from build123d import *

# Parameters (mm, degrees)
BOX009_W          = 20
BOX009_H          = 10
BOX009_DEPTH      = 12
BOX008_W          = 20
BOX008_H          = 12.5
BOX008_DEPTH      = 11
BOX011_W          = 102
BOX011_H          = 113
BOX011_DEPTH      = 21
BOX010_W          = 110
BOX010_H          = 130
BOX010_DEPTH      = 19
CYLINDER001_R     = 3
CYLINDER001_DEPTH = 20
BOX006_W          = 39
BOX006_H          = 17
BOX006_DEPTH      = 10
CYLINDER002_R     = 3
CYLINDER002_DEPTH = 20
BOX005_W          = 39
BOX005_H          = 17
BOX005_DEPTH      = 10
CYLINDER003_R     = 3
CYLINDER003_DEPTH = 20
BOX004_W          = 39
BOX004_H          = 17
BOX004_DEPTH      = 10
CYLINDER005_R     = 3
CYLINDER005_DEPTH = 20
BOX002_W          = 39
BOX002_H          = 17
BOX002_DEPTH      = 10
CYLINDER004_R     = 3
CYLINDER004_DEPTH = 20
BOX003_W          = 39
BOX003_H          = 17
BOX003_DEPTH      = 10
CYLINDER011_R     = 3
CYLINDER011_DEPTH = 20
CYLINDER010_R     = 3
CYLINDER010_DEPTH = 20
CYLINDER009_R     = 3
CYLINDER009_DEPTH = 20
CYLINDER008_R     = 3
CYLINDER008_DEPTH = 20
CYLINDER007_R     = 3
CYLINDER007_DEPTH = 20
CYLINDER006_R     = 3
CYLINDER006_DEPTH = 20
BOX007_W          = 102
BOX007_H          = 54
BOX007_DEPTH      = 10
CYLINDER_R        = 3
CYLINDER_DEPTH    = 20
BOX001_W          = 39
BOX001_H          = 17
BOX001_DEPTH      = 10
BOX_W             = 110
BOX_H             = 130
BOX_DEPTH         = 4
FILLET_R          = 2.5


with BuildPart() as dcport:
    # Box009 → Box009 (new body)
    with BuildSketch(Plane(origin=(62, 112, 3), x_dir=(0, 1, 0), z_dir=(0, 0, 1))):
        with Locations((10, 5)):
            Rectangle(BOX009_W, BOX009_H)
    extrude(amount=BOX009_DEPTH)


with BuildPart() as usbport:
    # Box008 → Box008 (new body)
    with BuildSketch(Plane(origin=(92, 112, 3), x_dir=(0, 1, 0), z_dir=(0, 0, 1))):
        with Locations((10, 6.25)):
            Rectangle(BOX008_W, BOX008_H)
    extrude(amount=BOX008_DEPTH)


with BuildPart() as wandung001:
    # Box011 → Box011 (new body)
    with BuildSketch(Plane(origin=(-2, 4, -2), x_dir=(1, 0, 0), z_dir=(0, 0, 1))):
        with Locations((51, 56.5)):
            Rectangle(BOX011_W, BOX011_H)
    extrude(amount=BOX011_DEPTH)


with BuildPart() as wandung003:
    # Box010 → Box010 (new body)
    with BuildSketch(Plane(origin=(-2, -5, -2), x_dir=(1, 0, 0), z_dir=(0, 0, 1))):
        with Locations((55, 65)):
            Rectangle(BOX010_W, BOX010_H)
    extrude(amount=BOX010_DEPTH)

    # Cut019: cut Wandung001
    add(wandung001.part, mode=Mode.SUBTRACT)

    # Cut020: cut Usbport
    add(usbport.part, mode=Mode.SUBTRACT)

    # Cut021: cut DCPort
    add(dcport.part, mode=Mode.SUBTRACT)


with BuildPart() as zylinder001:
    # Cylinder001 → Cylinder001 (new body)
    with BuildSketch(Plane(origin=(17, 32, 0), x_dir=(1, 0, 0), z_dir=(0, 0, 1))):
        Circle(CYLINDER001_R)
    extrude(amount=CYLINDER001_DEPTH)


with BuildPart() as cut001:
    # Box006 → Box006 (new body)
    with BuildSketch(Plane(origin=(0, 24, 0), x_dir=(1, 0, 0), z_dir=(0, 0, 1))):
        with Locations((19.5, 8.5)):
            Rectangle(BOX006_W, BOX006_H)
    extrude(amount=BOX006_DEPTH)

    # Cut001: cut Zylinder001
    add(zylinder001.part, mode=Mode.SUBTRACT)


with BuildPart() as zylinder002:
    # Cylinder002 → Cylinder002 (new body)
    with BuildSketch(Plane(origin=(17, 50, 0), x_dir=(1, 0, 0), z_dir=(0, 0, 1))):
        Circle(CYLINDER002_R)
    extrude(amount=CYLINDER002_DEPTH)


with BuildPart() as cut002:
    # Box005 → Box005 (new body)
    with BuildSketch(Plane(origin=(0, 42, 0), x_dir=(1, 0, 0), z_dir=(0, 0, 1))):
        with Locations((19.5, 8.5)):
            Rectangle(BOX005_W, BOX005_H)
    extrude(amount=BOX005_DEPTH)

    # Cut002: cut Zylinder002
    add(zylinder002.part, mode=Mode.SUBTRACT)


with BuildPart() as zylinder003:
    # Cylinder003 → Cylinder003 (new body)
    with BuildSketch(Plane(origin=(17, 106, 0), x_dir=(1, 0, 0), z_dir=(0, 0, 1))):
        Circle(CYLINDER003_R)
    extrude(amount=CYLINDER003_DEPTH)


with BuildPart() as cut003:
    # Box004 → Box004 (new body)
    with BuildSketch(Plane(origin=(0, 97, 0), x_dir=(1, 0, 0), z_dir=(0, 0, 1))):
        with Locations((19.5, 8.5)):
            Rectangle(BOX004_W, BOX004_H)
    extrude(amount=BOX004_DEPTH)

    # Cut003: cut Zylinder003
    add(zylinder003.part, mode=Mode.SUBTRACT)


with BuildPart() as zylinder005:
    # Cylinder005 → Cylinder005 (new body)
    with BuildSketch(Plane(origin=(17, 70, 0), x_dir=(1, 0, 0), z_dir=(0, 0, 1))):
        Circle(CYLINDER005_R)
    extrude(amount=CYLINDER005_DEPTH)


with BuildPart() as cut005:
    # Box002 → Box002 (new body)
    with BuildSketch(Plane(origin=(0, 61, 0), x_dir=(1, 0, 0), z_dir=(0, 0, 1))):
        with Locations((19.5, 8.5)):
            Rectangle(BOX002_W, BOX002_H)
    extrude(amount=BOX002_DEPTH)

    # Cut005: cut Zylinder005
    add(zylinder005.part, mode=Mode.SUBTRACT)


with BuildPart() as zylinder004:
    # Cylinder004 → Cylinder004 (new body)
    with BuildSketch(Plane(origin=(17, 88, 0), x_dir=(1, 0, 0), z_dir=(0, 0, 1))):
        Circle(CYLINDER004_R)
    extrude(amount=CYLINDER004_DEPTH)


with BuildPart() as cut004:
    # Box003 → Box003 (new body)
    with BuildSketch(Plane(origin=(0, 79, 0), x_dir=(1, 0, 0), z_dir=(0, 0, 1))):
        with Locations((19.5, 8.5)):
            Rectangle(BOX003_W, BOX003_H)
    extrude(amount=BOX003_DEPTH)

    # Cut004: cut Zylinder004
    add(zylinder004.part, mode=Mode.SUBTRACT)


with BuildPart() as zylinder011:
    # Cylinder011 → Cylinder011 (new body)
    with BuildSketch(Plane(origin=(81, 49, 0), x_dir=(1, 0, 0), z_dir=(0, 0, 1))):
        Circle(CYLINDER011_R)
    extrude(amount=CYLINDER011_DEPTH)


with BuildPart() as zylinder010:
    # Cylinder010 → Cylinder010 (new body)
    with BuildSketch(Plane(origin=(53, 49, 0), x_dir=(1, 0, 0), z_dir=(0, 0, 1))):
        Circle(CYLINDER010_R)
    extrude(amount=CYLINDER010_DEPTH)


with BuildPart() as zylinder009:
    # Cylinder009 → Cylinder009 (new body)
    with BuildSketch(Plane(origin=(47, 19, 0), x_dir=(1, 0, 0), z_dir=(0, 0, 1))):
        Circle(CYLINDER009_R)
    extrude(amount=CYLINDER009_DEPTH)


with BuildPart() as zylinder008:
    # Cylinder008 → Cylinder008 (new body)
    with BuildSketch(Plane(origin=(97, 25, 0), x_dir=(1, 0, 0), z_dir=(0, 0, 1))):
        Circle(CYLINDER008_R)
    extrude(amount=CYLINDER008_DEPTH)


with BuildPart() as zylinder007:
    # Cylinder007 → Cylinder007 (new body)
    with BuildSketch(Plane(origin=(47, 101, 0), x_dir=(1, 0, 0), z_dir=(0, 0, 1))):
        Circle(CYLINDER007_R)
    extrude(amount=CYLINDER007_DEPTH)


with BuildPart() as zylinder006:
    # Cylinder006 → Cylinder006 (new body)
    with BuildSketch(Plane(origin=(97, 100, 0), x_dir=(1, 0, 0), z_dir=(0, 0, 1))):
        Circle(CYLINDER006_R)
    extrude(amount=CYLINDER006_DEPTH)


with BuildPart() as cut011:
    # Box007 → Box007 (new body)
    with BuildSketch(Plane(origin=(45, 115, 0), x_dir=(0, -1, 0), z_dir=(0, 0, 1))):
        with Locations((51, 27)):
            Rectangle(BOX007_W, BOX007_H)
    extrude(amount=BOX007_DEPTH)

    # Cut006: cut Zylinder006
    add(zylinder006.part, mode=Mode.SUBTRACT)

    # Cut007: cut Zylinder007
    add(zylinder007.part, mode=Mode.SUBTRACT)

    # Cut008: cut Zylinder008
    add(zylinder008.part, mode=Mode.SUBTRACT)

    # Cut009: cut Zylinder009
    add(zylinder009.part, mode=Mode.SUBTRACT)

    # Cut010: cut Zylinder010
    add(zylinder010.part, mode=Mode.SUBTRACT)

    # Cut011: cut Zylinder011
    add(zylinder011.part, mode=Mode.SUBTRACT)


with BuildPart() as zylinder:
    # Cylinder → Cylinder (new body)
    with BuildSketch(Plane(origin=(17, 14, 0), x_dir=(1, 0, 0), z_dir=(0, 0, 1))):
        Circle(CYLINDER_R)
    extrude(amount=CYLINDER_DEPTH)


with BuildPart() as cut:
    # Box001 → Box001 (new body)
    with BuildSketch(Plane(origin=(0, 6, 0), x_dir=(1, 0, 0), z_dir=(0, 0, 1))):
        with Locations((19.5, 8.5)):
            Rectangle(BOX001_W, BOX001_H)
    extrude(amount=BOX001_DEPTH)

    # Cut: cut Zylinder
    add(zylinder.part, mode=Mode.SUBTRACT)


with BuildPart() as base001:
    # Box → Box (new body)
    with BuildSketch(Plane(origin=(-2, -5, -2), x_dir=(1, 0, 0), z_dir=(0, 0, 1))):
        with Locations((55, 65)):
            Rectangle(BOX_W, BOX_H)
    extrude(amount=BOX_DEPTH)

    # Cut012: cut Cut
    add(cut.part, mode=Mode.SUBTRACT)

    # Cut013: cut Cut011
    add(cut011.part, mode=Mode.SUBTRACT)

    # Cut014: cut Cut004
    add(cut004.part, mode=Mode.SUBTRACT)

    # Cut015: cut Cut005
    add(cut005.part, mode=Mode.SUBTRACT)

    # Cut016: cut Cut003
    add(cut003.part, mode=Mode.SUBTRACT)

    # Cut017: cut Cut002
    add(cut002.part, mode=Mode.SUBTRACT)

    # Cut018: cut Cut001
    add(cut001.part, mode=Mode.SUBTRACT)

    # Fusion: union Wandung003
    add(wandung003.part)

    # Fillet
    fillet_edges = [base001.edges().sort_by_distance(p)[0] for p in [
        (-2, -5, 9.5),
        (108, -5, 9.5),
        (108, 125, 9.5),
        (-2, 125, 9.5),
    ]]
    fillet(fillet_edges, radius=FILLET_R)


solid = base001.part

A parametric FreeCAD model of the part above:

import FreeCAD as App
import Part
import Sketcher
Q = App.Units.Quantity


def edges_at(feature, points):
    """Names of the edges that pass closest to the given points."""
    edges = feature.Shape.Edges
    near = lambda p: min(range(len(edges)), key=lambda i: edges[i].distToShape(Part.Vertex(*p))[0])
    return sorted({f"Edge{near(p) + 1}" for p in points})


def add_polygon(sketch, points):
    """Adds a closed chain of lines whose ends are joined by coincident constraints."""
    first, n = sketch.GeometryCount, len(points)
    for a, b in zip(points, points[1:] + points[:1]):
        sketch.addGeometry(Part.LineSegment(App.Vector(*a, 0), App.Vector(*b, 0)), False)
    for i in range(n):
        sketch.addConstraint(Sketcher.Constraint("Coincident", first + i, 2, first + (i + 1) % n, 1))

doc = App.newDocument("Part")
body = doc.addObject("PartDesign::Body", "Body")

sketch1 = body.newObject("Sketcher::SketchObject", "Sketch")
sketch1.AttachmentSupport = (doc.getObject("XY_Plane"), [""])
sketch1.MapMode = "FlatFace"
sketch1.AttachmentOffset = App.Placement(App.Vector(0, 0, 3), App.Rotation())
add_polygon(sketch1, [(52, 112), (62, 112), (62, 132), (52, 132)])
sketch1.addConstraint([
    Sketcher.Constraint("Horizontal", 0),
    Sketcher.Constraint("Vertical", 1),
    Sketcher.Constraint("Horizontal", 2),
    Sketcher.Constraint("Vertical", 3),
    Sketcher.Constraint("DistanceX", 0, 1, 0, 2, Q("10 mm")),
    Sketcher.Constraint("DistanceY", 1, 1, 1, 2, Q("20 mm")),
    Sketcher.Constraint("DistanceX", -1, 1, 0, 2, Q("62 mm")),
    Sketcher.Constraint("DistanceY", -1, 1, 0, 2, Q("112 mm")),
])
pad1 = body.newObject("PartDesign::Pad", "Pad")
pad1.Profile = sketch1
pad1.Length = 12
body2 = doc.addObject("PartDesign::Body", "Body001")

sketch2 = body2.newObject("Sketcher::SketchObject", "Sketch001")
sketch2.AttachmentSupport = (doc.getObject("XY_Plane001"), [""])
sketch2.MapMode = "FlatFace"
sketch2.AttachmentOffset = App.Placement(App.Vector(0, 0, 3), App.Rotation())
add_polygon(sketch2, [(80, 112), (92, 112), (92, 132), (80, 132)])
sketch2.addConstraint([
    Sketcher.Constraint("Horizontal", 0),
    Sketcher.Constraint("Vertical", 1),
    Sketcher.Constraint("Horizontal", 2),
    Sketcher.Constraint("Vertical", 3),
    Sketcher.Constraint("DistanceY", 1, 1, 1, 2, Q("20 mm")),
    Sketcher.Constraint("DistanceX", 0, 1, 0, 2, Q("12.5 mm")),
    Sketcher.Constraint("DistanceX", -1, 1, 0, 2, Q("92 mm")),
    Sketcher.Constraint("DistanceY", -1, 1, 0, 2, Q("112 mm")),
])
pad2 = body2.newObject("PartDesign::Pad", "Pad001")
pad2.Profile = sketch2
pad2.Length = 11
body3 = doc.addObject("PartDesign::Body", "Body002")

sketch3 = body3.newObject("Sketcher::SketchObject", "Sketch002")
sketch3.AttachmentSupport = (doc.getObject("XY_Plane002"), [""])
sketch3.MapMode = "FlatFace"
sketch3.AttachmentOffset = App.Placement(App.Vector(0, 0, -2), App.Rotation())
add_polygon(sketch3, [(-2, 117), (-2, 4), (100, 4), (100, 117)])
sketch3.addConstraint([
    Sketcher.Constraint("Vertical", 0),
    Sketcher.Constraint("Horizontal", 1),
    Sketcher.Constraint("Vertical", 2),
    Sketcher.Constraint("Horizontal", 3),
    Sketcher.Constraint("DistanceX", 1, 1, 1, 2, Q("102 mm")),
    Sketcher.Constraint("DistanceY", 0, 2, 0, 1, Q("113 mm")),
    Sketcher.Constraint("DistanceX", 0, 2, -1, 1, Q("2 mm")),
    Sketcher.Constraint("DistanceY", -1, 1, 0, 2, Q("4 mm")),
])
pad3 = body3.newObject("PartDesign::Pad", "Pad002")
pad3.Profile = sketch3
pad3.Length = 21
body4 = doc.addObject("PartDesign::Body", "Body003")

sketch4 = body4.newObject("Sketcher::SketchObject", "Sketch003")
sketch4.AttachmentSupport = (doc.getObject("XY_Plane003"), [""])
sketch4.MapMode = "FlatFace"
sketch4.AttachmentOffset = App.Placement(App.Vector(0, 0, -2), App.Rotation())
add_polygon(sketch4, [(-2, 125), (-2, -5), (108, -5), (108, 125)])
sketch4.addConstraint([
    Sketcher.Constraint("Vertical", 0),
    Sketcher.Constraint("Horizontal", 1),
    Sketcher.Constraint("Vertical", 2),
    Sketcher.Constraint("Horizontal", 3),
    Sketcher.Constraint("DistanceX", 1, 1, 1, 2, Q("110 mm")),
    Sketcher.Constraint("DistanceY", 0, 2, 0, 1, Q("130 mm")),
    Sketcher.Constraint("DistanceX", 0, 2, -1, 1, Q("2 mm")),
    Sketcher.Constraint("DistanceY", 0, 2, -1, 1, Q("5 mm")),
])
pad4 = body4.newObject("PartDesign::Pad", "Pad003")
pad4.Profile = sketch4
pad4.Length = 19
doc.recompute()

boolean = body4.newObject("PartDesign::Boolean", "Boolean")
boolean.Type = "Cut"
boolean.addObjects([body3])
doc.recompute()

boolean2 = body4.newObject("PartDesign::Boolean", "Boolean001")
boolean2.Type = "Cut"
boolean2.addObjects([body2])
doc.recompute()

boolean3 = body4.newObject("PartDesign::Boolean", "Boolean002")
boolean3.Type = "Cut"
boolean3.addObjects([body])
body5 = doc.addObject("PartDesign::Body", "Body004")

sketch5 = body5.newObject("Sketcher::SketchObject", "Sketch004")
sketch5.AttachmentSupport = (doc.getObject("XY_Plane004"), [""])
sketch5.MapMode = "FlatFace"
sketch5.addGeometry(Part.Circle(App.Vector(17, 32, 0), App.Vector(0, 0, 1), 3), False)
sketch5.addConstraint([
    Sketcher.Constraint("Diameter", 0, Q("6 mm")),
    Sketcher.Constraint("DistanceX", -1, 1, 0, 3, Q("17 mm")),
    Sketcher.Constraint("DistanceY", -1, 1, 0, 3, Q("32 mm")),
])
pad5 = body5.newObject("PartDesign::Pad", "Pad004")
pad5.Profile = sketch5
pad5.Length = 20
body6 = doc.addObject("PartDesign::Body", "Body005")

sketch6 = body6.newObject("Sketcher::SketchObject", "Sketch005")
sketch6.AttachmentSupport = (doc.getObject("XY_Plane005"), [""])
sketch6.MapMode = "FlatFace"
add_polygon(sketch6, [(0, 41), (0, 24), (39, 24), (39, 41)])
sketch6.addConstraint([
    Sketcher.Constraint("Vertical", 0),
    Sketcher.Constraint("Horizontal", 1),
    Sketcher.Constraint("Vertical", 2),
    Sketcher.Constraint("Horizontal", 3),
    Sketcher.Constraint("PointOnObject", 0, 2, -2),
    Sketcher.Constraint("DistanceX", 1, 1, 1, 2, Q("39 mm")),
    Sketcher.Constraint("DistanceY", 0, 2, 0, 1, Q("17 mm")),
    Sketcher.Constraint("DistanceY", -1, 1, 0, 2, Q("24 mm")),
])
pad6 = body6.newObject("PartDesign::Pad", "Pad005")
pad6.Profile = sketch6
pad6.Length = 10
doc.recompute()

boolean4 = body6.newObject("PartDesign::Boolean", "Boolean003")
boolean4.Type = "Cut"
boolean4.addObjects([body5])
body7 = doc.addObject("PartDesign::Body", "Body006")

sketch7 = body7.newObject("Sketcher::SketchObject", "Sketch006")
sketch7.AttachmentSupport = (doc.getObject("XY_Plane006"), [""])
sketch7.MapMode = "FlatFace"
sketch7.addGeometry(Part.Circle(App.Vector(17, 50, 0), App.Vector(0, 0, 1), 3), False)
sketch7.addConstraint([
    Sketcher.Constraint("Diameter", 0, Q("6 mm")),
    Sketcher.Constraint("DistanceX", -1, 1, 0, 3, Q("17 mm")),
    Sketcher.Constraint("DistanceY", -1, 1, 0, 3, Q("50 mm")),
])
pad7 = body7.newObject("PartDesign::Pad", "Pad006")
pad7.Profile = sketch7
pad7.Length = 20
body8 = doc.addObject("PartDesign::Body", "Body007")

sketch8 = body8.newObject("Sketcher::SketchObject", "Sketch007")
sketch8.AttachmentSupport = (doc.getObject("XY_Plane007"), [""])
sketch8.MapMode = "FlatFace"
add_polygon(sketch8, [(0, 59), (0, 42), (39, 42), (39, 59)])
sketch8.addConstraint([
    Sketcher.Constraint("Vertical", 0),
    Sketcher.Constraint("Horizontal", 1),
    Sketcher.Constraint("Vertical", 2),
    Sketcher.Constraint("Horizontal", 3),
    Sketcher.Constraint("PointOnObject", 0, 2, -2),
    Sketcher.Constraint("DistanceX", 1, 1, 1, 2, Q("39 mm")),
    Sketcher.Constraint("DistanceY", 0, 2, 0, 1, Q("17 mm")),
    Sketcher.Constraint("DistanceY", -1, 1, 0, 2, Q("42 mm")),
])
pad8 = body8.newObject("PartDesign::Pad", "Pad007")
pad8.Profile = sketch8
pad8.Length = 10
doc.recompute()

boolean5 = body8.newObject("PartDesign::Boolean", "Boolean004")
boolean5.Type = "Cut"
boolean5.addObjects([body7])
body9 = doc.addObject("PartDesign::Body", "Body008")

sketch9 = body9.newObject("Sketcher::SketchObject", "Sketch008")
sketch9.AttachmentSupport = (doc.getObject("XY_Plane008"), [""])
sketch9.MapMode = "FlatFace"
sketch9.addGeometry(Part.Circle(App.Vector(17, 106, 0), App.Vector(0, 0, 1), 3), False)
sketch9.addConstraint([
    Sketcher.Constraint("Diameter", 0, Q("6 mm")),
    Sketcher.Constraint("DistanceX", -1, 1, 0, 3, Q("17 mm")),
    Sketcher.Constraint("DistanceY", -1, 1, 0, 3, Q("106 mm")),
])
pad9 = body9.newObject("PartDesign::Pad", "Pad008")
pad9.Profile = sketch9
pad9.Length = 20
body10 = doc.addObject("PartDesign::Body", "Body009")

sketch10 = body10.newObject("Sketcher::SketchObject", "Sketch009")
sketch10.AttachmentSupport = (doc.getObject("XY_Plane009"), [""])
sketch10.MapMode = "FlatFace"
add_polygon(sketch10, [(0, 114), (0, 97), (39, 97), (39, 114)])
sketch10.addConstraint([
    Sketcher.Constraint("Vertical", 0),
    Sketcher.Constraint("Horizontal", 1),
    Sketcher.Constraint("Vertical", 2),
    Sketcher.Constraint("Horizontal", 3),
    Sketcher.Constraint("PointOnObject", 0, 2, -2),
    Sketcher.Constraint("DistanceX", 1, 1, 1, 2, Q("39 mm")),
    Sketcher.Constraint("DistanceY", 0, 2, 0, 1, Q("17 mm")),
    Sketcher.Constraint("DistanceY", -1, 1, 0, 2, Q("97 mm")),
])
pad10 = body10.newObject("PartDesign::Pad", "Pad009")
pad10.Profile = sketch10
pad10.Length = 10
doc.recompute()

boolean6 = body10.newObject("PartDesign::Boolean", "Boolean005")
boolean6.Type = "Cut"
boolean6.addObjects([body9])
body11 = doc.addObject("PartDesign::Body", "Body010")

sketch11 = body11.newObject("Sketcher::SketchObject", "Sketch010")
sketch11.AttachmentSupport = (doc.getObject("XY_Plane010"), [""])
sketch11.MapMode = "FlatFace"
sketch11.addGeometry(Part.Circle(App.Vector(17, 70, 0), App.Vector(0, 0, 1), 3), False)
sketch11.addConstraint([
    Sketcher.Constraint("Diameter", 0, Q("6 mm")),
    Sketcher.Constraint("DistanceX", -1, 1, 0, 3, Q("17 mm")),
    Sketcher.Constraint("DistanceY", -1, 1, 0, 3, Q("70 mm")),
])
pad11 = body11.newObject("PartDesign::Pad", "Pad010")
pad11.Profile = sketch11
pad11.Length = 20
body12 = doc.addObject("PartDesign::Body", "Body011")

sketch12 = body12.newObject("Sketcher::SketchObject", "Sketch011")
sketch12.AttachmentSupport = (doc.getObject("XY_Plane011"), [""])
sketch12.MapMode = "FlatFace"
add_polygon(sketch12, [(0, 78), (0, 61), (39, 61), (39, 78)])
sketch12.addConstraint([
    Sketcher.Constraint("Vertical", 0),
    Sketcher.Constraint("Horizontal", 1),
    Sketcher.Constraint("Vertical", 2),
    Sketcher.Constraint("Horizontal", 3),
    Sketcher.Constraint("PointOnObject", 0, 2, -2),
    Sketcher.Constraint("DistanceX", 1, 1, 1, 2, Q("39 mm")),
    Sketcher.Constraint("DistanceY", 0, 2, 0, 1, Q("17 mm")),
    Sketcher.Constraint("DistanceY", -1, 1, 0, 2, Q("61 mm")),
])
pad12 = body12.newObject("PartDesign::Pad", "Pad011")
pad12.Profile = sketch12
pad12.Length = 10
doc.recompute()

boolean7 = body12.newObject("PartDesign::Boolean", "Boolean006")
boolean7.Type = "Cut"
boolean7.addObjects([body11])
body13 = doc.addObject("PartDesign::Body", "Body012")

sketch13 = body13.newObject("Sketcher::SketchObject", "Sketch012")
sketch13.AttachmentSupport = (doc.getObject("XY_Plane012"), [""])
sketch13.MapMode = "FlatFace"
sketch13.addGeometry(Part.Circle(App.Vector(17, 88, 0), App.Vector(0, 0, 1), 3), False)
sketch13.addConstraint([
    Sketcher.Constraint("Diameter", 0, Q("6 mm")),
    Sketcher.Constraint("DistanceX", -1, 1, 0, 3, Q("17 mm")),
    Sketcher.Constraint("DistanceY", -1, 1, 0, 3, Q("88 mm")),
])
pad13 = body13.newObject("PartDesign::Pad", "Pad012")
pad13.Profile = sketch13
pad13.Length = 20
body14 = doc.addObject("PartDesign::Body", "Body013")

sketch14 = body14.newObject("Sketcher::SketchObject", "Sketch013")
sketch14.AttachmentSupport = (doc.getObject("XY_Plane013"), [""])
sketch14.MapMode = "FlatFace"
add_polygon(sketch14, [(0, 96), (0, 79), (39, 79), (39, 96)])
sketch14.addConstraint([
    Sketcher.Constraint("Vertical", 0),
    Sketcher.Constraint("Horizontal", 1),
    Sketcher.Constraint("Vertical", 2),
    Sketcher.Constraint("Horizontal", 3),
    Sketcher.Constraint("PointOnObject", 0, 2, -2),
    Sketcher.Constraint("DistanceX", 1, 1, 1, 2, Q("39 mm")),
    Sketcher.Constraint("DistanceY", 0, 2, 0, 1, Q("17 mm")),
    Sketcher.Constraint("DistanceY", -1, 1, 0, 2, Q("79 mm")),
])
pad14 = body14.newObject("PartDesign::Pad", "Pad013")
pad14.Profile = sketch14
pad14.Length = 10
doc.recompute()

boolean8 = body14.newObject("PartDesign::Boolean", "Boolean007")
boolean8.Type = "Cut"
boolean8.addObjects([body13])
body15 = doc.addObject("PartDesign::Body", "Body014")

sketch15 = body15.newObject("Sketcher::SketchObject", "Sketch014")
sketch15.AttachmentSupport = (doc.getObject("XY_Plane014"), [""])
sketch15.MapMode = "FlatFace"
sketch15.addGeometry(Part.Circle(App.Vector(81, 49, 0), App.Vector(0, 0, 1), 3), False)
sketch15.addConstraint([
    Sketcher.Constraint("Diameter", 0, Q("6 mm")),
    Sketcher.Constraint("DistanceX", -1, 1, 0, 3, Q("81 mm")),
    Sketcher.Constraint("DistanceY", -1, 1, 0, 3, Q("49 mm")),
])
pad15 = body15.newObject("PartDesign::Pad", "Pad014")
pad15.Profile = sketch15
pad15.Length = 20
body16 = doc.addObject("PartDesign::Body", "Body015")

sketch16 = body16.newObject("Sketcher::SketchObject", "Sketch015")
sketch16.AttachmentSupport = (doc.getObject("XY_Plane015"), [""])
sketch16.MapMode = "FlatFace"
sketch16.addGeometry(Part.Circle(App.Vector(53, 49, 0), App.Vector(0, 0, 1), 3), False)
sketch16.addConstraint([
    Sketcher.Constraint("Diameter", 0, Q("6 mm")),
    Sketcher.Constraint("DistanceX", -1, 1, 0, 3, Q("53 mm")),
    Sketcher.Constraint("DistanceY", -1, 1, 0, 3, Q("49 mm")),
])
pad16 = body16.newObject("PartDesign::Pad", "Pad015")
pad16.Profile = sketch16
pad16.Length = 20
body17 = doc.addObject("PartDesign::Body", "Body016")

sketch17 = body17.newObject("Sketcher::SketchObject", "Sketch016")
sketch17.AttachmentSupport = (doc.getObject("XY_Plane016"), [""])
sketch17.MapMode = "FlatFace"
sketch17.addGeometry(Part.Circle(App.Vector(47, 19, 0), App.Vector(0, 0, 1), 3), False)
sketch17.addConstraint([
    Sketcher.Constraint("Diameter", 0, Q("6 mm")),
    Sketcher.Constraint("DistanceX", -1, 1, 0, 3, Q("47 mm")),
    Sketcher.Constraint("DistanceY", -1, 1, 0, 3, Q("19 mm")),
])
pad17 = body17.newObject("PartDesign::Pad", "Pad016")
pad17.Profile = sketch17
pad17.Length = 20
body18 = doc.addObject("PartDesign::Body", "Body017")

sketch18 = body18.newObject("Sketcher::SketchObject", "Sketch017")
sketch18.AttachmentSupport = (doc.getObject("XY_Plane017"), [""])
sketch18.MapMode = "FlatFace"
sketch18.addGeometry(Part.Circle(App.Vector(97, 25, 0), App.Vector(0, 0, 1), 3), False)
sketch18.addConstraint([
    Sketcher.Constraint("Diameter", 0, Q("6 mm")),
    Sketcher.Constraint("DistanceX", -1, 1, 0, 3, Q("97 mm")),
    Sketcher.Constraint("DistanceY", -1, 1, 0, 3, Q("25 mm")),
])
pad18 = body18.newObject("PartDesign::Pad", "Pad017")
pad18.Profile = sketch18
pad18.Length = 20
body19 = doc.addObject("PartDesign::Body", "Body018")

sketch19 = body19.newObject("Sketcher::SketchObject", "Sketch018")
sketch19.AttachmentSupport = (doc.getObject("XY_Plane018"), [""])
sketch19.MapMode = "FlatFace"
sketch19.addGeometry(Part.Circle(App.Vector(47, 101, 0), App.Vector(0, 0, 1), 3), False)
sketch19.addConstraint([
    Sketcher.Constraint("Diameter", 0, Q("6 mm")),
    Sketcher.Constraint("DistanceX", -1, 1, 0, 3, Q("47 mm")),
    Sketcher.Constraint("DistanceY", -1, 1, 0, 3, Q("101 mm")),
])
pad19 = body19.newObject("PartDesign::Pad", "Pad018")
pad19.Profile = sketch19
pad19.Length = 20
body20 = doc.addObject("PartDesign::Body", "Body019")

sketch20 = body20.newObject("Sketcher::SketchObject", "Sketch019")
sketch20.AttachmentSupport = (doc.getObject("XY_Plane019"), [""])
sketch20.MapMode = "FlatFace"
sketch20.addGeometry(Part.Circle(App.Vector(97, 100, 0), App.Vector(0, 0, 1), 3), False)
sketch20.addConstraint([
    Sketcher.Constraint("Diameter", 0, Q("6 mm")),
    Sketcher.Constraint("DistanceX", -1, 1, 0, 3, Q("97 mm")),
    Sketcher.Constraint("DistanceY", -1, 1, 0, 3, Q("100 mm")),
])
pad20 = body20.newObject("PartDesign::Pad", "Pad019")
pad20.Profile = sketch20
pad20.Length = 20
body21 = doc.addObject("PartDesign::Body", "Body020")

sketch21 = body21.newObject("Sketcher::SketchObject", "Sketch020")
sketch21.AttachmentSupport = (doc.getObject("XY_Plane020"), [""])
sketch21.MapMode = "FlatFace"
add_polygon(sketch21, [(99, 115), (45, 115), (45, 13), (99, 13)])
sketch21.addConstraint([
    Sketcher.Constraint("Horizontal", 0),
    Sketcher.Constraint("Vertical", 1),
    Sketcher.Constraint("Horizontal", 2),
    Sketcher.Constraint("Vertical", 3),
    Sketcher.Constraint("DistanceX", 0, 2, 0, 1, Q("54 mm")),
    Sketcher.Constraint("DistanceY", 1, 2, 1, 1, Q("102 mm")),
    Sketcher.Constraint("DistanceX", -1, 1, 0, 2, Q("45 mm")),
    Sketcher.Constraint("DistanceY", -1, 1, 0, 2, Q("115 mm")),
])
pad21 = body21.newObject("PartDesign::Pad", "Pad020")
pad21.Profile = sketch21
pad21.Length = 10
doc.recompute()

boolean9 = body21.newObject("PartDesign::Boolean", "Boolean008")
boolean9.Type = "Cut"
boolean9.addObjects([body20])
doc.recompute()

boolean10 = body21.newObject("PartDesign::Boolean", "Boolean009")
boolean10.Type = "Cut"
boolean10.addObjects([body19])
doc.recompute()

boolean11 = body21.newObject("PartDesign::Boolean", "Boolean010")
boolean11.Type = "Cut"
boolean11.addObjects([body18])
doc.recompute()

boolean12 = body21.newObject("PartDesign::Boolean", "Boolean011")
boolean12.Type = "Cut"
boolean12.addObjects([body17])
doc.recompute()

boolean13 = body21.newObject("PartDesign::Boolean", "Boolean012")
boolean13.Type = "Cut"
boolean13.addObjects([body16])
doc.recompute()

boolean14 = body21.newObject("PartDesign::Boolean", "Boolean013")
boolean14.Type = "Cut"
boolean14.addObjects([body15])
body22 = doc.addObject("PartDesign::Body", "Body021")

sketch22 = body22.newObject("Sketcher::SketchObject", "Sketch021")
sketch22.AttachmentSupport = (doc.getObject("XY_Plane021"), [""])
sketch22.MapMode = "FlatFace"
sketch22.addGeometry(Part.Circle(App.Vector(17, 14, 0), App.Vector(0, 0, 1), 3), False)
sketch22.addConstraint([
    Sketcher.Constraint("Diameter", 0, Q("6 mm")),
    Sketcher.Constraint("DistanceX", -1, 1, 0, 3, Q("17 mm")),
    Sketcher.Constraint("DistanceY", -1, 1, 0, 3, Q("14 mm")),
])
pad22 = body22.newObject("PartDesign::Pad", "Pad021")
pad22.Profile = sketch22
pad22.Length = 20
body23 = doc.addObject("PartDesign::Body", "Body022")

sketch23 = body23.newObject("Sketcher::SketchObject", "Sketch022")
sketch23.AttachmentSupport = (doc.getObject("XY_Plane022"), [""])
sketch23.MapMode = "FlatFace"
add_polygon(sketch23, [(0, 23), (0, 6), (39, 6), (39, 23)])
sketch23.addConstraint([
    Sketcher.Constraint("Vertical", 0),
    Sketcher.Constraint("Horizontal", 1),
    Sketcher.Constraint("Vertical", 2),
    Sketcher.Constraint("Horizontal", 3),
    Sketcher.Constraint("PointOnObject", 0, 2, -2),
    Sketcher.Constraint("DistanceX", 1, 1, 1, 2, Q("39 mm")),
    Sketcher.Constraint("DistanceY", 0, 2, 0, 1, Q("17 mm")),
    Sketcher.Constraint("DistanceY", -1, 1, 0, 2, Q("6 mm")),
])
pad23 = body23.newObject("PartDesign::Pad", "Pad022")
pad23.Profile = sketch23
pad23.Length = 10
doc.recompute()

boolean15 = body23.newObject("PartDesign::Boolean", "Boolean014")
boolean15.Type = "Cut"
boolean15.addObjects([body22])
body24 = doc.addObject("PartDesign::Body", "Body023")

sketch24 = body24.newObject("Sketcher::SketchObject", "Sketch023")
sketch24.AttachmentSupport = (doc.getObject("XY_Plane023"), [""])
sketch24.MapMode = "FlatFace"
sketch24.AttachmentOffset = App.Placement(App.Vector(0, 0, -2), App.Rotation())
add_polygon(sketch24, [(-2, 125), (-2, -5), (108, -5), (108, 125)])
sketch24.addConstraint([
    Sketcher.Constraint("Vertical", 0),
    Sketcher.Constraint("Horizontal", 1),
    Sketcher.Constraint("Vertical", 2),
    Sketcher.Constraint("Horizontal", 3),
    Sketcher.Constraint("DistanceX", 1, 1, 1, 2, Q("110 mm")),
    Sketcher.Constraint("DistanceY", 0, 2, 0, 1, Q("130 mm")),
    Sketcher.Constraint("DistanceX", 0, 2, -1, 1, Q("2 mm")),
    Sketcher.Constraint("DistanceY", 0, 2, -1, 1, Q("5 mm")),
])
pad24 = body24.newObject("PartDesign::Pad", "Pad023")
pad24.Profile = sketch24
pad24.Length = 4
doc.recompute()

boolean16 = body24.newObject("PartDesign::Boolean", "Boolean015")
boolean16.Type = "Cut"
boolean16.addObjects([body23])
doc.recompute()

boolean17 = body24.newObject("PartDesign::Boolean", "Boolean016")
boolean17.Type = "Cut"
boolean17.addObjects([body21])
doc.recompute()

boolean18 = body24.newObject("PartDesign::Boolean", "Boolean017")
boolean18.Type = "Cut"
boolean18.addObjects([body14])
doc.recompute()

boolean19 = body24.newObject("PartDesign::Boolean", "Boolean018")
boolean19.Type = "Cut"
boolean19.addObjects([body12])
doc.recompute()

boolean20 = body24.newObject("PartDesign::Boolean", "Boolean019")
boolean20.Type = "Cut"
boolean20.addObjects([body10])
doc.recompute()

boolean21 = body24.newObject("PartDesign::Boolean", "Boolean020")
boolean21.Type = "Cut"
boolean21.addObjects([body8])
doc.recompute()

boolean22 = body24.newObject("PartDesign::Boolean", "Boolean021")
boolean22.Type = "Cut"
boolean22.addObjects([body6])
doc.recompute()

boolean23 = body24.newObject("PartDesign::Boolean", "Boolean022")
boolean23.Type = "Fuse"
boolean23.addObjects([body4])
doc.recompute()

fillet = body24.newObject("PartDesign::Fillet", "Fillet")
fillet.Base = (boolean23, edges_at(boolean23, [
    (-2, -5, 7.5),
    (108, -5, 7.5),
    (108, 125, 7.5),
    (-2, 125, 7.5),
]))
fillet.Radius = 2.5

doc.recompute()
